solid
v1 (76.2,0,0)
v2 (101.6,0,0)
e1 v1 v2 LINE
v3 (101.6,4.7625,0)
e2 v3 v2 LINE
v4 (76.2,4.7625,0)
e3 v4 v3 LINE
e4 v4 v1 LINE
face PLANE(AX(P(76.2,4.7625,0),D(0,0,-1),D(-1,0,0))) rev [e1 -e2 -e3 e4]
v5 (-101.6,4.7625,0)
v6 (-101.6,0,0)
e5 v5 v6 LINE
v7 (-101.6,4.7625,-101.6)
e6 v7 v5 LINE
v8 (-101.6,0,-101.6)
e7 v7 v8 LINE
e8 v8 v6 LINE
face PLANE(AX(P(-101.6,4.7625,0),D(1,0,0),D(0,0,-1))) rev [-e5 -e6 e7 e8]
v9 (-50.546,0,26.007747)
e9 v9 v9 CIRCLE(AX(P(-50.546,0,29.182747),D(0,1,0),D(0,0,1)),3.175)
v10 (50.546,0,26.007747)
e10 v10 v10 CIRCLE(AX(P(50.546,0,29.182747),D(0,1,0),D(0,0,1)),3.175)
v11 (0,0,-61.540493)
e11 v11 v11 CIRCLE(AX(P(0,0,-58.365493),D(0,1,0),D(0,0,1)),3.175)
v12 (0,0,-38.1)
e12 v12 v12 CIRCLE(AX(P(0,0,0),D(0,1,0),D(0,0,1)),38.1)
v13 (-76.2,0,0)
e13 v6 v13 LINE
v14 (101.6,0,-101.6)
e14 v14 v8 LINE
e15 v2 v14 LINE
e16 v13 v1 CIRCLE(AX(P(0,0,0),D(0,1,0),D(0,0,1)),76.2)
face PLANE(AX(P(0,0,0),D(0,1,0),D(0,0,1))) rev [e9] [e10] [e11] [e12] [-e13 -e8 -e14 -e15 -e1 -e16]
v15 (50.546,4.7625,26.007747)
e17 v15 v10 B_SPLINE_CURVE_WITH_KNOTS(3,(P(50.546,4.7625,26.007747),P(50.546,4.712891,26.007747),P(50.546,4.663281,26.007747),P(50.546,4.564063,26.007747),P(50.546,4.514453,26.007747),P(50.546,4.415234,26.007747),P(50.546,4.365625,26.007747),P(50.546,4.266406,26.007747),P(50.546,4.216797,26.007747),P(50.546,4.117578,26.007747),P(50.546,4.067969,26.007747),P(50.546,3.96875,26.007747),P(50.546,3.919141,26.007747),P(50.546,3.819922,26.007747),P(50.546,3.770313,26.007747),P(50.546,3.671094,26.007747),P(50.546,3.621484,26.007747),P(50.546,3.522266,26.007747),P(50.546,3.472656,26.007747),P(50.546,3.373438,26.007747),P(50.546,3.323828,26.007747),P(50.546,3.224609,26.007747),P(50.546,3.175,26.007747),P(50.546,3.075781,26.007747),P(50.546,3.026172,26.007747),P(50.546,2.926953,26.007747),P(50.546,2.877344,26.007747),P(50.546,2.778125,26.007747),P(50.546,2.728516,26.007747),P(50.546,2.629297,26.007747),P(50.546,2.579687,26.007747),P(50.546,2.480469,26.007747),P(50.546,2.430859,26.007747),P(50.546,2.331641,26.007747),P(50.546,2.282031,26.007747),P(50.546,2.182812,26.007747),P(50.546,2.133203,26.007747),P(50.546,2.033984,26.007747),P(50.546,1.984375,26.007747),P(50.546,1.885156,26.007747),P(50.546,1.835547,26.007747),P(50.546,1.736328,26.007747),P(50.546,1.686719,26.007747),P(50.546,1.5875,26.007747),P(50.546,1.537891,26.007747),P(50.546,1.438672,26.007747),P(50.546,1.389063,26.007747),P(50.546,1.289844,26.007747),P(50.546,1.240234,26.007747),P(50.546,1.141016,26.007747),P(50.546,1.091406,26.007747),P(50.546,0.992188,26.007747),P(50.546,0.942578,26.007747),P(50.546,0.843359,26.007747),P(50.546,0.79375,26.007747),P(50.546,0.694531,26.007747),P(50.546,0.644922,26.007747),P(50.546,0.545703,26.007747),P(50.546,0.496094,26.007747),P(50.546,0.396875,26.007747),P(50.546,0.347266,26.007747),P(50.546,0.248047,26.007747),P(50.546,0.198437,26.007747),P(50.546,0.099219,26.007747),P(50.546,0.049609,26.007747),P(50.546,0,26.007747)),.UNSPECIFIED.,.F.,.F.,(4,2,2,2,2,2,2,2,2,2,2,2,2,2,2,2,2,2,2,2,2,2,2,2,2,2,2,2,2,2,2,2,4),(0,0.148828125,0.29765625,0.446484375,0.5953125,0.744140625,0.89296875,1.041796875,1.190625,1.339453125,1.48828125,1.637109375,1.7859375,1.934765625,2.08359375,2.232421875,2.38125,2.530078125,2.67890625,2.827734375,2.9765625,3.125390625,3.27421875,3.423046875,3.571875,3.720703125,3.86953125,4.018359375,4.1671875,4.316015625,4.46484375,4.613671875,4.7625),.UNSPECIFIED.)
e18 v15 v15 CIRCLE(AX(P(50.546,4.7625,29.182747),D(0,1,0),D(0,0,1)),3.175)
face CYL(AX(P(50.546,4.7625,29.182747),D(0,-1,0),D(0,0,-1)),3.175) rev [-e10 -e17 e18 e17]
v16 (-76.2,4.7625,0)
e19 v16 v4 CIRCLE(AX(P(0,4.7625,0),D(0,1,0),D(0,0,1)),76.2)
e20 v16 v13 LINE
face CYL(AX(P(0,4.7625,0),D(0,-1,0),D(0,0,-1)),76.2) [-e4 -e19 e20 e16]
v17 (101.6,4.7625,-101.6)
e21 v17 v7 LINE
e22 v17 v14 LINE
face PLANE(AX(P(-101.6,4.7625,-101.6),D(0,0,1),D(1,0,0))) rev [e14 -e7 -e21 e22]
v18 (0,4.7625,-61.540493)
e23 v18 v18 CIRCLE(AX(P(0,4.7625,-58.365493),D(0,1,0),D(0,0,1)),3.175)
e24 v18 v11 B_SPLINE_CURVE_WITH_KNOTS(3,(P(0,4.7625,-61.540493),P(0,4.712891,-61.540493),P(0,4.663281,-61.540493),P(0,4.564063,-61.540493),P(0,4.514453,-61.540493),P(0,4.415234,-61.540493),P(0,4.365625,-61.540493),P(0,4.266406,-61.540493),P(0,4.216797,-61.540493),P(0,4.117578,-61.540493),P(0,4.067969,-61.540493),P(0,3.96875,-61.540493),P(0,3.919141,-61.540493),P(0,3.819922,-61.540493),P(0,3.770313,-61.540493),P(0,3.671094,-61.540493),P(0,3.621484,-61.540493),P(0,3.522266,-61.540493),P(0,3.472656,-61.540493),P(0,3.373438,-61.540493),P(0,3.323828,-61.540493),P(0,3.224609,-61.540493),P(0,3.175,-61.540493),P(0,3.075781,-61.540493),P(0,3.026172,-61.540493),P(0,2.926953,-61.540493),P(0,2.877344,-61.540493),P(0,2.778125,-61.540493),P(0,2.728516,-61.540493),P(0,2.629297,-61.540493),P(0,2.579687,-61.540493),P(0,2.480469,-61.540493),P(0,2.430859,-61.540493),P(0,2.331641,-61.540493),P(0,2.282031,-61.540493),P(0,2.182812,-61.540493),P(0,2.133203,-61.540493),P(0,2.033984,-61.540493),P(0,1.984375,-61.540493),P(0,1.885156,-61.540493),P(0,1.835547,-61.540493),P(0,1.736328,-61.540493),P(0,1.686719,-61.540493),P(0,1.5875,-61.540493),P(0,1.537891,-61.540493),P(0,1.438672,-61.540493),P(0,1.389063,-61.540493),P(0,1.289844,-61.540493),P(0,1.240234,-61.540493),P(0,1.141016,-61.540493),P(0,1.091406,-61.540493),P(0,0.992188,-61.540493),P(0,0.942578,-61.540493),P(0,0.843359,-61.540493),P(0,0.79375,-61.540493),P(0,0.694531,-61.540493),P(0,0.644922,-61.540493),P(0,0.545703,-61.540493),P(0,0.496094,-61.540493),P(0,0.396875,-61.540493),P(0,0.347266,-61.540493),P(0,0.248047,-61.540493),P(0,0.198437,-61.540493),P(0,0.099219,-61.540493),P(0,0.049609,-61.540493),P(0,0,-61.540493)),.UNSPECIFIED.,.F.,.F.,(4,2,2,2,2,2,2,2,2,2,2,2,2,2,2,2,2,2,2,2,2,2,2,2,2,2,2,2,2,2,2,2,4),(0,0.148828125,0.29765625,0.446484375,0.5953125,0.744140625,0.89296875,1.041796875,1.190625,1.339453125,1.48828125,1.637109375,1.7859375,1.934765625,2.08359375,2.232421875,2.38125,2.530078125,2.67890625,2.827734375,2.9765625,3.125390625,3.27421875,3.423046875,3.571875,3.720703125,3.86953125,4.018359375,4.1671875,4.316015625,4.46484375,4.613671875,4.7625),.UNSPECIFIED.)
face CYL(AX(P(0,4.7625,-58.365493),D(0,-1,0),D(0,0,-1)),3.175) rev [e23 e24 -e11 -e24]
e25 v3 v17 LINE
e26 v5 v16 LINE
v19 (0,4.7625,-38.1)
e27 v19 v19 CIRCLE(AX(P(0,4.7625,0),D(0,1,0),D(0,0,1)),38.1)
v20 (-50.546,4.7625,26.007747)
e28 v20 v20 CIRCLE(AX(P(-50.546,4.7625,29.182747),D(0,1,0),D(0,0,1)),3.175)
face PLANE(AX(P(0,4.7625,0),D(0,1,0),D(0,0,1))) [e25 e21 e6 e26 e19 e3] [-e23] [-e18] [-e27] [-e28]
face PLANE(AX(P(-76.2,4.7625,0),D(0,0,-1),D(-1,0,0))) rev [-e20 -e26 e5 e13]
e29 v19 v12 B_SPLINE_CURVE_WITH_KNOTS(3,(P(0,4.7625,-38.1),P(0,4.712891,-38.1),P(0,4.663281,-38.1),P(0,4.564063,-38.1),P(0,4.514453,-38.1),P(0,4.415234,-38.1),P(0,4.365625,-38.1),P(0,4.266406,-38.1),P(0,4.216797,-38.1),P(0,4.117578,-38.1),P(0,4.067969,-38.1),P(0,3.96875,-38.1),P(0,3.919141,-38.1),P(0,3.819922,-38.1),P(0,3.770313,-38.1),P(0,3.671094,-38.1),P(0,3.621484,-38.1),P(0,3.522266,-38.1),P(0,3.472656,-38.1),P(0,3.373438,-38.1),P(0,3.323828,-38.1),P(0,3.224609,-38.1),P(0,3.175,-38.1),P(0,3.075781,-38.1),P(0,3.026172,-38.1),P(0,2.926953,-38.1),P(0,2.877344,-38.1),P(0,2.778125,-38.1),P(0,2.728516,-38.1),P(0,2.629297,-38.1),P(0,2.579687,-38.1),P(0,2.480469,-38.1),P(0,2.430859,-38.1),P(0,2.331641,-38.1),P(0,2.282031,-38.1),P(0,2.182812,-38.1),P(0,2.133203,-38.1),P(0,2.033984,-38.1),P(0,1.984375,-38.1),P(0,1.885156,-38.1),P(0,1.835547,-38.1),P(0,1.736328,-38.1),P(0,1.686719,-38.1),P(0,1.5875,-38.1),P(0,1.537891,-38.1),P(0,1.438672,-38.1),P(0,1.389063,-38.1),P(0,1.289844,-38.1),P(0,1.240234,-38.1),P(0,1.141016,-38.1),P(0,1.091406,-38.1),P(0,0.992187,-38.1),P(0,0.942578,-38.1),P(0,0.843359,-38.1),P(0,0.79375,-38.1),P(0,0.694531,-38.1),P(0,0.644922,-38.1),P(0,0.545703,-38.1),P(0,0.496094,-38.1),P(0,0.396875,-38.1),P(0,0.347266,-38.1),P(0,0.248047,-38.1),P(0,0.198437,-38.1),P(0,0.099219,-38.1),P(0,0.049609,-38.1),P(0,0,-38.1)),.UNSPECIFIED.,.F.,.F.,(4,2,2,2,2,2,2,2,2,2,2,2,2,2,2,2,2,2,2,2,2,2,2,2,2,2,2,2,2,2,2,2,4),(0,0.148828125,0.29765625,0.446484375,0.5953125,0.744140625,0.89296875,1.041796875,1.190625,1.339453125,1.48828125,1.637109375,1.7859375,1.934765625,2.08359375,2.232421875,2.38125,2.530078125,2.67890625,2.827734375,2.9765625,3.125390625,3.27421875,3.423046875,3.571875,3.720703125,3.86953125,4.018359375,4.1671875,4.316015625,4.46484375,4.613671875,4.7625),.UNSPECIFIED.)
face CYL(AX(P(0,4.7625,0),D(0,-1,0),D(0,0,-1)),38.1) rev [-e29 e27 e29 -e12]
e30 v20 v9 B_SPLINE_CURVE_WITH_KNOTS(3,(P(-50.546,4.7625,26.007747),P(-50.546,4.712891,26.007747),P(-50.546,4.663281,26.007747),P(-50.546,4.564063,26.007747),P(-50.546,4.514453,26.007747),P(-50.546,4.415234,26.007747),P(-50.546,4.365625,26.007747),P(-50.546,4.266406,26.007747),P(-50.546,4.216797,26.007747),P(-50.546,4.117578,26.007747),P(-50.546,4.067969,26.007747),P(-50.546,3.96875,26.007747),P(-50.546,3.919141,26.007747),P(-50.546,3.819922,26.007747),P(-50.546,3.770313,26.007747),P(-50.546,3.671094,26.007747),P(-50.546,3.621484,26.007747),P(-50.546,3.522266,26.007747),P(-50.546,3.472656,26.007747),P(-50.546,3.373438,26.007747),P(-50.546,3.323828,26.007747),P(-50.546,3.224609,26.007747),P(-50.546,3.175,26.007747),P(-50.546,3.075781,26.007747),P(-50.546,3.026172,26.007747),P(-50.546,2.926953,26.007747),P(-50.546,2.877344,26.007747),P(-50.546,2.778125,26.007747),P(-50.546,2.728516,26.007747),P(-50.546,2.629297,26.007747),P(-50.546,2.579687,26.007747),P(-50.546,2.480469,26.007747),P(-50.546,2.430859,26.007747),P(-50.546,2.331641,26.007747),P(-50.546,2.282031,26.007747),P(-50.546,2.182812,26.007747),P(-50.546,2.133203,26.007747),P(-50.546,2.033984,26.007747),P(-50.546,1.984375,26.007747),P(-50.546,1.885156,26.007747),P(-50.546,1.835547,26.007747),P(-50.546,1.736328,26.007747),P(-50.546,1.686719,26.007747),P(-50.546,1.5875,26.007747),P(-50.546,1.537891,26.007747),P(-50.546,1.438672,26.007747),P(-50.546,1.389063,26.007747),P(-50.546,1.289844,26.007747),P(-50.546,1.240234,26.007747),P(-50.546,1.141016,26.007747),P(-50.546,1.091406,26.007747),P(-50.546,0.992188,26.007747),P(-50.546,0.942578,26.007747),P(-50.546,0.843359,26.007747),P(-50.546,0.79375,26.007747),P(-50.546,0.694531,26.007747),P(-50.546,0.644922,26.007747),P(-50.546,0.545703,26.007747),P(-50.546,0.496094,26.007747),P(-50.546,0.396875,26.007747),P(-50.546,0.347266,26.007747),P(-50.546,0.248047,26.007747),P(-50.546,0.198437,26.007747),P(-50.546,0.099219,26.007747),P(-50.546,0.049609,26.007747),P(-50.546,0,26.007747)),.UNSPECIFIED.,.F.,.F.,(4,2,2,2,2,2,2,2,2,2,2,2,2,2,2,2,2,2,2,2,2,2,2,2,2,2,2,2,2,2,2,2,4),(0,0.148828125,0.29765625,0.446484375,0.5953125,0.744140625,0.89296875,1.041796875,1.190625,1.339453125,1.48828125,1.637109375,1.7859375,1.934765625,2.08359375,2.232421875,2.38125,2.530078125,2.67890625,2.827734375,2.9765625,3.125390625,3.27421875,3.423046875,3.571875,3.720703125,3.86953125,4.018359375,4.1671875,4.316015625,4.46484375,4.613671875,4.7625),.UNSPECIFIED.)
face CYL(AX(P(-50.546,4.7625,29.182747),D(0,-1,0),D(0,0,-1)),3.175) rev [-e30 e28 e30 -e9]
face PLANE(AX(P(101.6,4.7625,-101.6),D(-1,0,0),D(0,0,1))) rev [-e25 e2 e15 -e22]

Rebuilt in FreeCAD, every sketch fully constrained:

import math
import FreeCAD as App
import Part
import Sketcher
from FreeCAD import Vector
Q = App.Units.Quantity

doc = App.newDocument("Part")
body = doc.addObject("PartDesign::Body", "Body")

# Sketch on XZ plane
sketch1 = body.newObject("Sketcher::SketchObject", "Sketch")
sketch1.AttachmentSupport = (doc.getObject("XZ_Plane"), [""])
sketch1.MapMode = "FlatFace"
sketch1.addGeometry(Part.LineSegment(Vector(-101.6, -101.6, 0), Vector(-101.6, 0, 0)), False)
sketch1.addGeometry(Part.LineSegment(Vector(-101.6, 0, 0), Vector(-76.2, 0, 0)), False)
sketch1.addGeometry(Part.ArcOfCircle(Part.Circle(Vector(0, 0, 0), Vector(0, 0, 1), 76.2), math.radians(0), math.radians(180)), False)
sketch1.addGeometry(Part.LineSegment(Vector(76.2, 0, 0), Vector(101.6, 0, 0)), False)
sketch1.addGeometry(Part.LineSegment(Vector(101.6, 0, 0), Vector(101.6, -101.6, 0)), False)
sketch1.addGeometry(Part.LineSegment(Vector(101.6, -101.6, 0), Vector(-101.6, -101.6, 0)), False)
sketch1.addGeometry(Part.Circle(Vector(50.5, 29.2, 0), Vector(0, 0, 1), 3.2), False)
sketch1.addGeometry(Part.Circle(Vector(-50.5, 29.2, 0), Vector(0, 0, 1), 3.2), False)
sketch1.addGeometry(Part.Circle(Vector(0, 0, 0), Vector(0, 0, 1), 38.1), False)
sketch1.addGeometry(Part.Circle(Vector(0, -58.4, 0), Vector(0, 0, 1), 3.2), False)
sketch1.addConstraint(Sketcher.Constraint("Coincident", 0, 2, 1, 1))
sketch1.addConstraint(Sketcher.Constraint("Coincident", 1, 2, 2, 2))
sketch1.addConstraint(Sketcher.Constraint("Coincident", 2, 1, 3, 1))
sketch1.addConstraint(Sketcher.Constraint("Coincident", 3, 2, 4, 1))
sketch1.addConstraint(Sketcher.Constraint("Coincident", 4, 2, 5, 1))
sketch1.addConstraint(Sketcher.Constraint("Coincident", 5, 2, 0, 1))
sketch1.addConstraint(Sketcher.Constraint("Vertical", 0))
sketch1.addConstraint(Sketcher.Constraint("Horizontal", 1))
sketch1.addConstraint(Sketcher.Constraint("Horizontal", 3))
sketch1.addConstraint(Sketcher.Constraint("Vertical", 4))
sketch1.addConstraint(Sketcher.Constraint("Horizontal", 5))
sketch1.addConstraint(Sketcher.Constraint("Coincident", 2, 3, -1, 1))
sketch1.addConstraint(Sketcher.Constraint("Coincident", 8, 3, -1, 1))
sketch1.addConstraint(Sketcher.Constraint("Equal", 6, 7))
sketch1.addConstraint(Sketcher.Constraint("Equal", 7, 9))
sketch1.addConstraint(Sketcher.Constraint("Symmetric", 0, 2, 3, 2, -1, 1))
sketch1.addConstraint(Sketcher.Constraint("Symmetric", 6, 3, 7, 3, -2))
sketch1.addConstraint(Sketcher.Constraint("PointOnObject", 9, 3, -2))
sketch1.addConstraint(Sketcher.Constraint("PointOnObject", 0, 2, -1))
sketch1.addConstraint(Sketcher.Constraint("Diameter", 8, Q("3 in")))
sketch1.addConstraint(Sketcher.Constraint("Radius", 2, Q("3 in")))
sketch1.addConstraint(Sketcher.Constraint("Diameter", 6, Q("0.25 in")))
sketch1.addConstraint(Sketcher.Constraint("DistanceX", 1, 1, 1, 2, Q("1 in")))
sketch1.addConstraint(Sketcher.Constraint("DistanceY", 0, 1, 0, 2, Q("4 in")))
sketch1.addConstraint(Sketcher.Constraint("DistanceX", -1, 1, 6, 3, Q("1.99 in")))
sketch1.addConstraint(Sketcher.Constraint("DistanceY", 9, 3, 6, 3, Q("87.54824 mm")))
sketch1.addConstraint(Sketcher.Constraint("DistanceY", -1, 1, 6, 3, Q("29.182747 mm")))
pad1 = body.newObject("PartDesign::Pad", "Pad")
pad1.Profile = sketch1
pad1.Length = Q("0.1875 in")
pad1.Reversed = True

doc.recompute()
